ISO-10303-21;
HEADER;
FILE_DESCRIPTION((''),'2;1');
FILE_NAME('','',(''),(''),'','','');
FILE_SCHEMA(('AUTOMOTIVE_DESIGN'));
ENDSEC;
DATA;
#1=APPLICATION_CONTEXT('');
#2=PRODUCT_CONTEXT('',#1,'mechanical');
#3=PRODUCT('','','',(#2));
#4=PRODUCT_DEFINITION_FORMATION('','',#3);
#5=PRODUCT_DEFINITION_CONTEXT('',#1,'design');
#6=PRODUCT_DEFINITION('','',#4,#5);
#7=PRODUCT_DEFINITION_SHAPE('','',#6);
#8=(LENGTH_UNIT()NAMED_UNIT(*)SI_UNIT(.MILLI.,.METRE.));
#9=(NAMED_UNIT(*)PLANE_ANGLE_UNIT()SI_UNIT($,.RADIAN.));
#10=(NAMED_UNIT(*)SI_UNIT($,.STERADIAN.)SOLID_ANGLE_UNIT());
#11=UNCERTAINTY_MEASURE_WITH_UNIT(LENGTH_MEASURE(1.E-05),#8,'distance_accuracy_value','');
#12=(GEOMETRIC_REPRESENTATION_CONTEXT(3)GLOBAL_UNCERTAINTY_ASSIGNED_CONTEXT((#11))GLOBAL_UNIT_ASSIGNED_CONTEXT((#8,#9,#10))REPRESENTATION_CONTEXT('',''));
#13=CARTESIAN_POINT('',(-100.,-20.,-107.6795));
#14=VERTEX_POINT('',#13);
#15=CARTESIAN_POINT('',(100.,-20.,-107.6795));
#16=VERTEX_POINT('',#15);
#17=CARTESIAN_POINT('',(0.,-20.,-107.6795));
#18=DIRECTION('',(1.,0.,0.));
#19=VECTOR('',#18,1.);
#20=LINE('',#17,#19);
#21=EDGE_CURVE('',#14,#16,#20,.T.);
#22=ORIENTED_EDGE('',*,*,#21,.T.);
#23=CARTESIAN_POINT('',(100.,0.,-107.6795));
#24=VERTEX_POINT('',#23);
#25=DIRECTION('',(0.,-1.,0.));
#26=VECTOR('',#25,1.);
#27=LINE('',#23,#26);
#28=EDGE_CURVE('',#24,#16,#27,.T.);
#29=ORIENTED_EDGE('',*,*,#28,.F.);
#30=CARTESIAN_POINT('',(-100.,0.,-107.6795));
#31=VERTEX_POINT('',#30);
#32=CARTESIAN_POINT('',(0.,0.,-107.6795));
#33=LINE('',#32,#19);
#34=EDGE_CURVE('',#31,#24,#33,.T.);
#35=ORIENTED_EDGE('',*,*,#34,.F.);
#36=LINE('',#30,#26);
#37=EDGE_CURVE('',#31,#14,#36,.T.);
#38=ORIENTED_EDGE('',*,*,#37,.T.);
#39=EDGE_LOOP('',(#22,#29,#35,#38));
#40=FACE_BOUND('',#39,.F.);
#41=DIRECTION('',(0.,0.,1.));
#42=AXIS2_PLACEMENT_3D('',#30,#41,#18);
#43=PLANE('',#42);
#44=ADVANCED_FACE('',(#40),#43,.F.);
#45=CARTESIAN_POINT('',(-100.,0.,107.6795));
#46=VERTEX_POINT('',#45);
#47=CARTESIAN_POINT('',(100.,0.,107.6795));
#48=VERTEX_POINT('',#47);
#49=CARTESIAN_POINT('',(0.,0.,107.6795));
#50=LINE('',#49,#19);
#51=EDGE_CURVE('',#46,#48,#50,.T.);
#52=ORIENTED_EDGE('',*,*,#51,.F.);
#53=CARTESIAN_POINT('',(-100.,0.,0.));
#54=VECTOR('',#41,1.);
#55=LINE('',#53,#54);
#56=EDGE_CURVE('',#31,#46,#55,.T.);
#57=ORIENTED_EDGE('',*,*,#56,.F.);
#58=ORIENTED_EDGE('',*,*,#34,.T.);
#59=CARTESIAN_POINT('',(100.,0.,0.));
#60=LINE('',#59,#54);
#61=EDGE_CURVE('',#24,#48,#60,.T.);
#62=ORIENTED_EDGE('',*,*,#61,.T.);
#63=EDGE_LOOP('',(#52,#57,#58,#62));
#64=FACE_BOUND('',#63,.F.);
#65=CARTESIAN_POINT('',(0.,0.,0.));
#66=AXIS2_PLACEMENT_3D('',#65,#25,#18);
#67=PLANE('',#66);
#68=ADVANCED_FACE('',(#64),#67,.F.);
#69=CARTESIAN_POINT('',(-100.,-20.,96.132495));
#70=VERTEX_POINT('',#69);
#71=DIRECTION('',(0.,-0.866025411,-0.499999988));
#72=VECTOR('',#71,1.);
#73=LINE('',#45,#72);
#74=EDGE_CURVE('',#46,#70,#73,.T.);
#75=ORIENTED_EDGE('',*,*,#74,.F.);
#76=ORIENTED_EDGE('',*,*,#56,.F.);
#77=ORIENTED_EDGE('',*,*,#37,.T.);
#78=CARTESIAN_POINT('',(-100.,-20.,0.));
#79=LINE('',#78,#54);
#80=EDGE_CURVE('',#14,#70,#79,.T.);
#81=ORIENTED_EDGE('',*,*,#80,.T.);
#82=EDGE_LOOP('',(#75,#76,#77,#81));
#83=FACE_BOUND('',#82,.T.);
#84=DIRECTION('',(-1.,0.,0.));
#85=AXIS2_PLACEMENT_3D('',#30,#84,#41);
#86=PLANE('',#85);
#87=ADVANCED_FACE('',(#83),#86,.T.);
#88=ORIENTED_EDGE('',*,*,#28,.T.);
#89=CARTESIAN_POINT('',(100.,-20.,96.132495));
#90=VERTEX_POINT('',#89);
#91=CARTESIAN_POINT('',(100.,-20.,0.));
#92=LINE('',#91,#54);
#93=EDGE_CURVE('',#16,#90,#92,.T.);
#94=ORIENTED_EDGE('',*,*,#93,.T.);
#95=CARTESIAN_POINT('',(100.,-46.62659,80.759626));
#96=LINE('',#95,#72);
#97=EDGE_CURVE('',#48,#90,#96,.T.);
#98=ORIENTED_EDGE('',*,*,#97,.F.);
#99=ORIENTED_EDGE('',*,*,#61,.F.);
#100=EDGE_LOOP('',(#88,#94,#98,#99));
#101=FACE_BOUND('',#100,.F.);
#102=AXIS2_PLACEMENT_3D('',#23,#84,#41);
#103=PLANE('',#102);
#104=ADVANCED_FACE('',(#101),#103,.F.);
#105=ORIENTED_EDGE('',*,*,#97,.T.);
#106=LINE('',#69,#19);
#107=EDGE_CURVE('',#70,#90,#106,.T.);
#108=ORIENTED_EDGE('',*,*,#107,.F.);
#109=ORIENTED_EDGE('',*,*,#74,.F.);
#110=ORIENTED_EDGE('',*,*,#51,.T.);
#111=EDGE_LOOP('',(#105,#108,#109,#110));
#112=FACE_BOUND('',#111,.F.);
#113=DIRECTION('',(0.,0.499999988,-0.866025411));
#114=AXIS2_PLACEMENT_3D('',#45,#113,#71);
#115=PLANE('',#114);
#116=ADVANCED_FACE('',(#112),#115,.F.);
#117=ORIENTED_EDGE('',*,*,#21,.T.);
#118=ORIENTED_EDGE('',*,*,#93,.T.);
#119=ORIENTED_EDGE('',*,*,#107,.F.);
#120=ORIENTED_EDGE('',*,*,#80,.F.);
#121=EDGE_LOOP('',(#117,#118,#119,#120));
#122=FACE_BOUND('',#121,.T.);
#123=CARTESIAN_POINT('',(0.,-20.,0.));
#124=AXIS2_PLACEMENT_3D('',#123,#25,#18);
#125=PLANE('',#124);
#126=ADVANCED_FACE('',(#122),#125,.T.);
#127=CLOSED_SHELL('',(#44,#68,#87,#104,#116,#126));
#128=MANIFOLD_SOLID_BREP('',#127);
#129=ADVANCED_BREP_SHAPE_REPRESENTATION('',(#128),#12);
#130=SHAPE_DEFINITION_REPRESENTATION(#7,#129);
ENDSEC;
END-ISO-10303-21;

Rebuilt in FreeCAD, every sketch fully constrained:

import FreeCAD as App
import Part
import Sketcher
from FreeCAD import Vector
Q = App.Units.Quantity

doc = App.newDocument("Part")
body = doc.addObject("PartDesign::Body", "Body")

# Sketch on XZ plane
sketch1 = body.newObject("Sketcher::SketchObject", "Sketch")
sketch1.AttachmentSupport = (doc.getObject("XZ_Plane"), [""])
sketch1.MapMode = "FlatFace"
sketch1.addGeometry([
    Part.LineSegment(Vector(-100, 107.6795, 0), Vector(-100, -107.6795, 0)),
    Part.LineSegment(Vector(-100, -107.6795, 0), Vector(100, -107.6795, 0)),
    Part.LineSegment(Vector(100, -107.6795, 0), Vector(100, 107.6795, 0)),
    Part.LineSegment(Vector(100, 107.6795, 0), Vector(-100, 107.6795, 0)),
], False)
sketch1.addConstraint([
    Sketcher.Constraint("Coincident", 0, 2, 1, 1),
    Sketcher.Constraint("Coincident", 1, 2, 2, 1),
    Sketcher.Constraint("Coincident", 2, 2, 3, 1),
    Sketcher.Constraint("Coincident", 3, 2, 0, 1),
    Sketcher.Constraint("Vertical", 0),
    Sketcher.Constraint("Horizontal", 1),
    Sketcher.Constraint("Vertical", 2),
    Sketcher.Constraint("Horizontal", 3),
    Sketcher.Constraint("Symmetric", 0, 2, 2, 2, -1, 1),
    Sketcher.Constraint("DistanceX", 1, 1, 1, 2, Q("200 mm")),
    Sketcher.Constraint("DistanceY", 0, 2, 0, 1, Q("215.359 mm")),
])
pad1 = body.newObject("PartDesign::Pad", "Pad")
pad1.Profile = sketch1
pad1.Length = 20

# Sketch on YZ plane
sketch2 = body.newObject("Sketcher::SketchObject", "Sketch001")
sketch2.AttachmentSupport = (doc.getObject("YZ_Plane"), [""])
sketch2.MapMode = "FlatFace"
sketch2.AttachmentOffset = App.Placement(Vector(0, 0, -100), App.Rotation())
sketch2.addGeometry([
    Part.LineSegment(Vector(-20, 107.6795, 0), Vector(0, 107.6795, 0)),
    Part.LineSegment(Vector(0, 107.6795, 0), Vector(-20, 96.132495, 0)),
    Part.LineSegment(Vector(-20, 96.132495, 0), Vector(-20, 107.6795, 0)),
], False)
sketch2.addConstraint([
    Sketcher.Constraint("Coincident", 0, 2, 1, 1),
    Sketcher.Constraint("Coincident", 1, 2, 2, 1),
    Sketcher.Constraint("Coincident", 2, 2, 0, 1),
    Sketcher.Constraint("Horizontal", 0),
    Sketcher.Constraint("Vertical", 2),
    Sketcher.Constraint("PointOnObject", 0, 2, -2),
    Sketcher.Constraint("DistanceX", 0, 1, 0, 2, Q("20 mm")),
    Sketcher.Constraint("Angle", 1, Q("-150.000001 deg")),
    Sketcher.Constraint("DistanceY", -1, 1, 0, 2, Q("107.6795 mm")),
])
pocket1 = body.newObject("PartDesign::Pocket", "Pocket")
pocket1.Profile = sketch2
pocket1.Type = "ThroughAll"
pocket1.Reversed = True

doc.recompute()
